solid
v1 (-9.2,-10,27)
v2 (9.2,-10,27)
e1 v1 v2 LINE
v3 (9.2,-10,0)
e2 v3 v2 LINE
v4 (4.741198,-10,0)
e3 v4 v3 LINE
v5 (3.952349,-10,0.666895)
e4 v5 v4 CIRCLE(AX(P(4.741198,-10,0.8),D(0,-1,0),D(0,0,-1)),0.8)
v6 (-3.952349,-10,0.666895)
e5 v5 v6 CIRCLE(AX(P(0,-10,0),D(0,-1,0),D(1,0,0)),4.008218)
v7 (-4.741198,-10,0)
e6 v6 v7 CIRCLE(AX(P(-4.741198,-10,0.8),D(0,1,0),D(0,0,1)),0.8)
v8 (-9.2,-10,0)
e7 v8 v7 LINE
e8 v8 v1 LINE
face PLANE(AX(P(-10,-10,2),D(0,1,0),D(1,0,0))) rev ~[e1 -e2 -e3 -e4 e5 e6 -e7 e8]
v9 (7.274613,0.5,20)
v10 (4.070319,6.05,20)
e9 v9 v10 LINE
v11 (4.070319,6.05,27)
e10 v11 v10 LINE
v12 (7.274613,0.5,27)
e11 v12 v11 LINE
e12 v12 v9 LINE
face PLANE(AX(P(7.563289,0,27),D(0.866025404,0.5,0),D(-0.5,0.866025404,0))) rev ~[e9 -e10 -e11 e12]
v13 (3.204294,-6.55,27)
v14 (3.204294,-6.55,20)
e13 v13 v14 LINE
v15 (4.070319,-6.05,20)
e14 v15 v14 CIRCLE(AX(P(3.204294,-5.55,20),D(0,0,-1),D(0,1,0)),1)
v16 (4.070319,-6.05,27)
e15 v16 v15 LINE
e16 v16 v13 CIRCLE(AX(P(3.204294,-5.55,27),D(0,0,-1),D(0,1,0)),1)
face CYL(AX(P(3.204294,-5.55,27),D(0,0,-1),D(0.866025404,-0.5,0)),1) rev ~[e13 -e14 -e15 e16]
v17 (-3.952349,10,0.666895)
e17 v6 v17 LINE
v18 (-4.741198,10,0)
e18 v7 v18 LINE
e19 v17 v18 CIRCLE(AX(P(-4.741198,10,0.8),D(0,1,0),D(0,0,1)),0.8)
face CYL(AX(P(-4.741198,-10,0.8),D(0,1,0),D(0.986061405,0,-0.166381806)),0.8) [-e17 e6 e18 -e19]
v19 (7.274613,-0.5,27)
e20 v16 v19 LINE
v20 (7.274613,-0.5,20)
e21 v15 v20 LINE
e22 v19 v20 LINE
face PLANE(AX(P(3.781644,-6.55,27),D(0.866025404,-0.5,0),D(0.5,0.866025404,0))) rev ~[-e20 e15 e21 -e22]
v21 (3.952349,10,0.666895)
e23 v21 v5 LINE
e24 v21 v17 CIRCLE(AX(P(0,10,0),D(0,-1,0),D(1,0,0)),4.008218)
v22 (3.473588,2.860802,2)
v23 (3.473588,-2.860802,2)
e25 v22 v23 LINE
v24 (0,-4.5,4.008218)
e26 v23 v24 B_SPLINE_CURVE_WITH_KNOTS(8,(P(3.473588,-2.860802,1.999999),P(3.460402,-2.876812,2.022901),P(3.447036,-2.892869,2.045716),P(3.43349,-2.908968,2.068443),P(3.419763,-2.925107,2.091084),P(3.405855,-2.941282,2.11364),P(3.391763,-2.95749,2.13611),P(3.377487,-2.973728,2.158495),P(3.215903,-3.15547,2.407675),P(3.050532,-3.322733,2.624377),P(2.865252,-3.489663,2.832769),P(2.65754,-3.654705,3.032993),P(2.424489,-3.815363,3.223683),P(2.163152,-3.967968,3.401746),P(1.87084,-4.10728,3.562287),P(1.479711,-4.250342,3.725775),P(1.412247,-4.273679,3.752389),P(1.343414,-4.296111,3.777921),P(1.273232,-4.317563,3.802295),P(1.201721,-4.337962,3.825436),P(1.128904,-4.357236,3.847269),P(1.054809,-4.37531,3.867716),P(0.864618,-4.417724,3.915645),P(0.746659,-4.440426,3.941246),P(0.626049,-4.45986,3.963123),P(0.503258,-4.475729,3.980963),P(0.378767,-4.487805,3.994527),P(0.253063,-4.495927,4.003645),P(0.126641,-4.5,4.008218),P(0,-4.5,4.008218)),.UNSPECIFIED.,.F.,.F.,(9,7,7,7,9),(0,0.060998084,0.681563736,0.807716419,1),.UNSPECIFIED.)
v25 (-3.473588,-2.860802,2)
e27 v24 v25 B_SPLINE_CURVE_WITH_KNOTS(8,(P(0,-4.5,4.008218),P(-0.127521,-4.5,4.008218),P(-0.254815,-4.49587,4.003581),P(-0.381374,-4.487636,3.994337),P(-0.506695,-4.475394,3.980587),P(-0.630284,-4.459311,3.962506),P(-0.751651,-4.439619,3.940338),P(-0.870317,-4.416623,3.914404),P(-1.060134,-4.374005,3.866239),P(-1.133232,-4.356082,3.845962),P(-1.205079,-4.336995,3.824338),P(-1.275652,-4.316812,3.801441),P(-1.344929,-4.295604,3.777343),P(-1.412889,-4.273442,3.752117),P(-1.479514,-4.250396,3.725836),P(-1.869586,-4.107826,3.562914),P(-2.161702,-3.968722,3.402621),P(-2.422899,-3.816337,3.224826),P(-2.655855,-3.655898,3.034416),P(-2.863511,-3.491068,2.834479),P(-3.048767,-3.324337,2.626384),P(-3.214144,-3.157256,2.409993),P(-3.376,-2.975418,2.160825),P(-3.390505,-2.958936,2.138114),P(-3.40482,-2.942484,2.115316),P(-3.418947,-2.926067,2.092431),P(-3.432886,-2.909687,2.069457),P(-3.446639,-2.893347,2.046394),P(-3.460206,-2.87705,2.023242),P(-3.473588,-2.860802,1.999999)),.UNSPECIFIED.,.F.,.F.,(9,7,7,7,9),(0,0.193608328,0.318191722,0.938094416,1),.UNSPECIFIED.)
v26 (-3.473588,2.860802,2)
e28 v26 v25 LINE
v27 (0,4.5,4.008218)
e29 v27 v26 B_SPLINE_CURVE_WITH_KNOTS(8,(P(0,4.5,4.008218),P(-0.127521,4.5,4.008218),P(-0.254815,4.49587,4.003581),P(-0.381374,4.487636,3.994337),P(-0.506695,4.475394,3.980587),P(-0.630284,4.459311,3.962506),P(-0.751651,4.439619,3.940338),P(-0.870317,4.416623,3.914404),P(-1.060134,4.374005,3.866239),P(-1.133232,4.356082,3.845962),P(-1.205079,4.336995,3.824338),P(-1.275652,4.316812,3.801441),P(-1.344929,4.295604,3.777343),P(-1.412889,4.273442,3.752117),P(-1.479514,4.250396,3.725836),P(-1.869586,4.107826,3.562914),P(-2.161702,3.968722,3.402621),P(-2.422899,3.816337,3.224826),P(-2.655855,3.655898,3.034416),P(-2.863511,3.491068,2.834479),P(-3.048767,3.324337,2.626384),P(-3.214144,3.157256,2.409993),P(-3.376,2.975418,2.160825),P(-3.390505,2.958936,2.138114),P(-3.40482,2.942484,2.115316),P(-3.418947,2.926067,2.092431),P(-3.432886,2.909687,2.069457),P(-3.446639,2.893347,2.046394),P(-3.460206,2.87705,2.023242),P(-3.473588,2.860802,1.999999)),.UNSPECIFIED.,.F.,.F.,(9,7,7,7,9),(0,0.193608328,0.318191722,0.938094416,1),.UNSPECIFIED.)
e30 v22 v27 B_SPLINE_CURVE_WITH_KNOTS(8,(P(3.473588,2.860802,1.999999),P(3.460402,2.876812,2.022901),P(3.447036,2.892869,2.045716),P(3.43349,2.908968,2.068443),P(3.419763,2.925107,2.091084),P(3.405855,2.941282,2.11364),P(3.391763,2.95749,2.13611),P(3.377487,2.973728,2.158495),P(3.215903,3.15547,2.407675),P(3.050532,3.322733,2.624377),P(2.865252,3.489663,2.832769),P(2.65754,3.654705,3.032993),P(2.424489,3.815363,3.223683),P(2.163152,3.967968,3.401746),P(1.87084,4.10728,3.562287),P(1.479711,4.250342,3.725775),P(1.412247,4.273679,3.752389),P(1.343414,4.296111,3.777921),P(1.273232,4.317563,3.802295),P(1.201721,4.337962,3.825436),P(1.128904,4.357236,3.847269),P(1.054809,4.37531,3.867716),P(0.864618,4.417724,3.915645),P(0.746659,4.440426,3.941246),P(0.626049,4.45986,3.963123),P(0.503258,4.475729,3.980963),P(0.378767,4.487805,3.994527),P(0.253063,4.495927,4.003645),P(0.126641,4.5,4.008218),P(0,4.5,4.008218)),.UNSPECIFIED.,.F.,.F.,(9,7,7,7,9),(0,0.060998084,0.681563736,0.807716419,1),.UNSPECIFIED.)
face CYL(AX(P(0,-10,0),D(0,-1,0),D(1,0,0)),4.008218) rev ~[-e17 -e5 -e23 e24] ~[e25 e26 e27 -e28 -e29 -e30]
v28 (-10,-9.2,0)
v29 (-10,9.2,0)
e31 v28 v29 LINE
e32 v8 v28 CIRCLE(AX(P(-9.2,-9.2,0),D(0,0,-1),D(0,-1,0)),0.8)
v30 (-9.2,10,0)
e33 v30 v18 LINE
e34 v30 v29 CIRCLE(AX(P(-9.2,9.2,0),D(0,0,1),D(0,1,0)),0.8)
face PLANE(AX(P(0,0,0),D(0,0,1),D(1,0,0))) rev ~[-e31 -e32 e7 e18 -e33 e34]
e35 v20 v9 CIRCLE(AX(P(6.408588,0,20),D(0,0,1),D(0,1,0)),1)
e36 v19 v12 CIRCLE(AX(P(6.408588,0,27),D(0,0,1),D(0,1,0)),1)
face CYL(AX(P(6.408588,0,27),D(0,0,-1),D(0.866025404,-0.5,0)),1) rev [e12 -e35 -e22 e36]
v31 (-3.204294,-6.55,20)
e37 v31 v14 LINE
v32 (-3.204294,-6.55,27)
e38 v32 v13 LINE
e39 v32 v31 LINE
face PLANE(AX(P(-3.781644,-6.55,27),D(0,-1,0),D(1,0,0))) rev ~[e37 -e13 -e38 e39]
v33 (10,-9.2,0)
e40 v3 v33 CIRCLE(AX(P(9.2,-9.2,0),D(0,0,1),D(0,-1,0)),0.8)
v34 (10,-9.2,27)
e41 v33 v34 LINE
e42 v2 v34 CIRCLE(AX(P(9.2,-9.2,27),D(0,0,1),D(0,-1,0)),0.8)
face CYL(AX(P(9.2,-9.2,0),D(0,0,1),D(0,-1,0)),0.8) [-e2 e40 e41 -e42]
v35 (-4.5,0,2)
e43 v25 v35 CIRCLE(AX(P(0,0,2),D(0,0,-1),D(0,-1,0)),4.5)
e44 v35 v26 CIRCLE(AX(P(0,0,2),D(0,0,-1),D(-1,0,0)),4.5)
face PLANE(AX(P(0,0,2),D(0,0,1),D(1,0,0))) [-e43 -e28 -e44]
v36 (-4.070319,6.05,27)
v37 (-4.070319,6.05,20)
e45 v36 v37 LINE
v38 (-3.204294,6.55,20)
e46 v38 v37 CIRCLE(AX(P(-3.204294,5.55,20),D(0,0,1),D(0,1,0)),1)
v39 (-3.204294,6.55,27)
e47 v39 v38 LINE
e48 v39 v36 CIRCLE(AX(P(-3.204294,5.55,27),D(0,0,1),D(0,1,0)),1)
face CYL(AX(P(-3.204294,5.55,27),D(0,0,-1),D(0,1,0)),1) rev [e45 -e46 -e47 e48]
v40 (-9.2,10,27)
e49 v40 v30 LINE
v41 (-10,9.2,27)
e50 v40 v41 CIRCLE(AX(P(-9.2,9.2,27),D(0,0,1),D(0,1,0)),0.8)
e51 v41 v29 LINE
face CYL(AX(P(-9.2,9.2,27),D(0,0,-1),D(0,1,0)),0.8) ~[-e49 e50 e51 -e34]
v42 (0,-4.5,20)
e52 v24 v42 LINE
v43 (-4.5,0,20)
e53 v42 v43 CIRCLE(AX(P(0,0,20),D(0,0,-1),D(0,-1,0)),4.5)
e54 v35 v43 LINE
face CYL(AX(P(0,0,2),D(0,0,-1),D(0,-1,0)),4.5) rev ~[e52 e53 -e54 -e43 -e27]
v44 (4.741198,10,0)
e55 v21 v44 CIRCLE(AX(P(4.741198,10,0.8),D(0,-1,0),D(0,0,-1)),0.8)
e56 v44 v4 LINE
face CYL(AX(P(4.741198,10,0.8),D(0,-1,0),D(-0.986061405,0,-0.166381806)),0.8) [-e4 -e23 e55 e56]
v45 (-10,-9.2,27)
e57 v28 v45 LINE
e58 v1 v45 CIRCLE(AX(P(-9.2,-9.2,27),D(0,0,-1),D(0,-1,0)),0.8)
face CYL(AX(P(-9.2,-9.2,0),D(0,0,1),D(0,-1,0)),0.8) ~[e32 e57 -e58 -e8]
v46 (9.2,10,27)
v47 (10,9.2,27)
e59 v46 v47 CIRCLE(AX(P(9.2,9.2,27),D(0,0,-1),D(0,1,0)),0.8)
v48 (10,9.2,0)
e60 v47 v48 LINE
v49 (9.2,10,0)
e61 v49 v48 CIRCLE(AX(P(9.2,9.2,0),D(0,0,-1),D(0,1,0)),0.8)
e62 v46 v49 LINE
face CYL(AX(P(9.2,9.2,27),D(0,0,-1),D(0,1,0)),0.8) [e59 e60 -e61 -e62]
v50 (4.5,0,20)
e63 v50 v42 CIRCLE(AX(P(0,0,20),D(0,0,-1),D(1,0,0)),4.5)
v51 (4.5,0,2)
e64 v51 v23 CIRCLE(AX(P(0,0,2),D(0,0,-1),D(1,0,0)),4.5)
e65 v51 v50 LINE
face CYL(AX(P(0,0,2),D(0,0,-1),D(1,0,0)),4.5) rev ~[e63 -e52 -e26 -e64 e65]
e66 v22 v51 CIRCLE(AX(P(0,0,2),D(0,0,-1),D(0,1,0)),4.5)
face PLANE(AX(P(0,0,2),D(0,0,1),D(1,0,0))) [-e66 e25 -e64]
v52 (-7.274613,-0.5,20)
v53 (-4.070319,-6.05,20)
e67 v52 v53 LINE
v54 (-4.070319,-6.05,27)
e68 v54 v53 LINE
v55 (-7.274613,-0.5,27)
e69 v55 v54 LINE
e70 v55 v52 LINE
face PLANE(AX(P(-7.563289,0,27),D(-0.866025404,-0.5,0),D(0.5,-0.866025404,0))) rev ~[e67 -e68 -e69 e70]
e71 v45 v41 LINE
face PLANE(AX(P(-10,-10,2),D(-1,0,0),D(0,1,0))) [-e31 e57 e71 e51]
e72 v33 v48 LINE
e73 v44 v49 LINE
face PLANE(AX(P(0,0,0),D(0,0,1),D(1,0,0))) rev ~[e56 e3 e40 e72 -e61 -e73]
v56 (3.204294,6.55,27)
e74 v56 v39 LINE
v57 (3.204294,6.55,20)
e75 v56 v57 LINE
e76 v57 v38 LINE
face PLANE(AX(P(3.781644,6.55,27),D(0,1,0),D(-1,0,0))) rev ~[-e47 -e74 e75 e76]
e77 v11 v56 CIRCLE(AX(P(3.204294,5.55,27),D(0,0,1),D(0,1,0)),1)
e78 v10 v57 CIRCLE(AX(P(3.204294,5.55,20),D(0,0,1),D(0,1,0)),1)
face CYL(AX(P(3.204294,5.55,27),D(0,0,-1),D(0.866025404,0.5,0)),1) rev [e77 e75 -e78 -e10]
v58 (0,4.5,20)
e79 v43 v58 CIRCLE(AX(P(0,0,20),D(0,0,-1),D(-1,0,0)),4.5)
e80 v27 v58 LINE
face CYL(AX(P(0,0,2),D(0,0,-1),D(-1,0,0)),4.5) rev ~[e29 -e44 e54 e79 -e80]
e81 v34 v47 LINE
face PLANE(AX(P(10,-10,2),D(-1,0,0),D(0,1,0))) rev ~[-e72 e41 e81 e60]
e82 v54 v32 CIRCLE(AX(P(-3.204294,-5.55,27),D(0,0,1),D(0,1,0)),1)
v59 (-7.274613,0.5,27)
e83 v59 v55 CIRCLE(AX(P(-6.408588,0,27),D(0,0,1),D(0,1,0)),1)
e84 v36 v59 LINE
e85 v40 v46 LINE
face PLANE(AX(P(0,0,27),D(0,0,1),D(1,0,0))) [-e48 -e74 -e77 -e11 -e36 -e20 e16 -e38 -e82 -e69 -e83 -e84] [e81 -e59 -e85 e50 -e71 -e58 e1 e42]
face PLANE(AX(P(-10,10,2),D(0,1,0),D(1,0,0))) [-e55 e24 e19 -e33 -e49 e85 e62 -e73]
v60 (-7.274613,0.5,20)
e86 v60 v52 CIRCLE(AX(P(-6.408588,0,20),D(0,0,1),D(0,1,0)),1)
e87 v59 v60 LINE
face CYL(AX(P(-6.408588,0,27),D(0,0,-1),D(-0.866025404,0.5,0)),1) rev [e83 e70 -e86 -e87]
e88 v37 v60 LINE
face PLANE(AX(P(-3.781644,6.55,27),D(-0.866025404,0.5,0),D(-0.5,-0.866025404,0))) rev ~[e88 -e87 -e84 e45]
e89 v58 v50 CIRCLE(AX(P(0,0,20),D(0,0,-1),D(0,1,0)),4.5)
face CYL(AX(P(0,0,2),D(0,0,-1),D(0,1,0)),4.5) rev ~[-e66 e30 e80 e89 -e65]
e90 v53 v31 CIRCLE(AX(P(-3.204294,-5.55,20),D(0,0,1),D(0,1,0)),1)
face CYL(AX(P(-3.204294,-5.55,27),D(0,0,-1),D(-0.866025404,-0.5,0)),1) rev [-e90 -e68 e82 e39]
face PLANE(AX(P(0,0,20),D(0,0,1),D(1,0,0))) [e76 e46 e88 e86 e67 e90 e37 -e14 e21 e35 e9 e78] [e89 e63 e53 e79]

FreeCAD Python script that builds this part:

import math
import FreeCAD as App
import Part
import Sketcher
Q = App.Units.Quantity


def edges_at(feature, points):
    """Names of the edges that pass closest to the given points."""
    edges = feature.Shape.Edges
    near = lambda p: min(range(len(edges)), key=lambda i: edges[i].distToShape(Part.Vertex(*p))[0])
    return sorted({f"Edge{near(p) + 1}" for p in points})


def add_polygon(sketch, points):
    """Adds a closed chain of lines whose ends are joined by coincident constraints."""
    first, n = sketch.GeometryCount, len(points)
    for a, b in zip(points, points[1:] + points[:1]):
        sketch.addGeometry(Part.LineSegment(App.Vector(*a, 0), App.Vector(*b, 0)), False)
    for i in range(n):
        sketch.addConstraint(Sketcher.Constraint("Coincident", first + i, 2, first + (i + 1) % n, 1))

doc = App.newDocument("Part")
params = doc.addObject("Spreadsheet::Sheet", "Params")
for row, (alias, value) in enumerate([
    ("sketch1_width", "20 mm"),
    ("pad1_length", "2 mm"),
    ("sketch2_width", "20 mm"),
    ("sketch2_width2", "9 mm"),
    ("pad2_length", "25 mm"),
    ("sketch3_width", "9 mm"),
    ("pocket1_length", "7 mm"),
    ("fillet_radius", "1 mm"),
    ("sketch4_radius", "4.5 mm"),
    ("sketch4_width", "20 mm"),
    ("pad3_length", "18 mm"),
    ("pocket2_length", "49.6 mm"),
    ("fillet2_radius", "0.8 mm"),
    ("fillet3_radius", "0.8 mm"),
], start=1):
    params.set(f"A{row}", alias)
    params.set(f"B{row}", "=" + value)
    params.setAlias(f"B{row}", alias)

body = doc.addObject("PartDesign::Body", "Body")

sketch1 = doc.addObject("Sketcher::SketchObject", "Sketch")
body.addObject(sketch1)
sketch1.AttachmentSupport = (doc.XY_Plane, [""])
sketch1.MapMode = "FlatFace"
add_polygon(sketch1, [(-10, 10), (-10, -10), (10, -10), (10, 10)])
sketch1.addConstraint([
    Sketcher.Constraint("Vertical", 0),
    Sketcher.Constraint("Horizontal", 1),
    Sketcher.Constraint("Vertical", 2),
    Sketcher.Constraint("Horizontal", 3),
    Sketcher.Constraint("Symmetric", 0, 2, 2, 2, -1, 1),
    Sketcher.Constraint("Equal", 3, 0),
    Sketcher.Constraint("DistanceX", 1, 1, 1, 2, 20.0),
])
sketch1.setExpression("Constraints[10]", "Params.sketch1_width")
pad1 = doc.addObject("PartDesign::Pad", "Pad")
body.addObject(pad1)
pad1.Profile = sketch1
pad1.setExpression("Length", "Params.pad1_length")

sketch2 = doc.addObject("Sketcher::SketchObject", "Sketch001")
body.addObject(sketch2)
sketch2.AttachmentSupport = (doc.XY_Plane, [""])
sketch2.MapMode = "FlatFace"
sketch2.AttachmentOffset = App.Placement(App.Vector(0, 0, 2), App.Rotation())
add_polygon(sketch2, [(-10, 10), (-10, -10), (10, -10), (10, 10)])
add_polygon(sketch2, [(4, -4), (-4, -4), (-4, 4), (4, 4)])
sketch2.addConstraint([
    Sketcher.Constraint("Vertical", 0),
    Sketcher.Constraint("Horizontal", 1),
    Sketcher.Constraint("Vertical", 2),
    Sketcher.Constraint("Horizontal", 3),
    Sketcher.Constraint("Horizontal", 4),
    Sketcher.Constraint("Vertical", 5),
    Sketcher.Constraint("Horizontal", 6),
    Sketcher.Constraint("Vertical", 7),
    Sketcher.Constraint("Symmetric", 0, 2, 2, 2, -1, 1),
    Sketcher.Constraint("Symmetric", 4, 2, 6, 2, -1, 1),
    Sketcher.Constraint("Equal", 3, 0),
    Sketcher.Constraint("Equal", 6, 5),
    Sketcher.Constraint("DistanceX", 1, 1, 1, 2, 20.0),
    Sketcher.Constraint("DistanceX", 4, 2, 4, 1, 9.0),
])
sketch2.setExpression("Constraints[20]", "Params.sketch2_width")
sketch2.setExpression("Constraints[21]", "Params.sketch2_width2")
pad2 = doc.addObject("PartDesign::Pad", "Pad001")
body.addObject(pad2)
pad2.Profile = sketch2
pad2.setExpression("Length", "Params.pad2_length")

sketch3 = doc.addObject("Sketcher::SketchObject", "Sketch002")
body.addObject(sketch3)
sketch3.AttachmentSupport = (doc.XY_Plane, [""])
sketch3.MapMode = "FlatFace"
sketch3.AttachmentOffset = App.Placement(App.Vector(0, 0, 27), App.Rotation())
add_polygon(sketch3, [(4, -7), (8, 0), (4, 7), (-4, 7), (-8, 0), (-4, -7)])
add_polygon(sketch3, [(4, -4), (-4, -4), (-4, 4), (4, 4)])
sketch3.addConstraint([
    Sketcher.Constraint("Horizontal", 2),
    Sketcher.Constraint("Horizontal", 5),
    Sketcher.Constraint("Horizontal", 6),
    Sketcher.Constraint("Vertical", 7),
    Sketcher.Constraint("Horizontal", 8),
    Sketcher.Constraint("Vertical", 9),
    Sketcher.Constraint("Symmetric", 0, 2, 3, 2, -1, 1),
    Sketcher.Constraint("Symmetric", 1, 2, 4, 2, -1, 1),
    Sketcher.Constraint("Symmetric", 6, 2, 8, 2, -1, 1),
    Sketcher.Constraint("PointOnObject", 0, 2, -1),
    Sketcher.Constraint("Parallel", 0, 3),
    Sketcher.Constraint("Vertical", 2, 2, 4, 2),
    Sketcher.Constraint("Equal", 8, 7),
    Sketcher.Constraint("DistanceX", 6, 2, 6, 1, 9.0),
    Sketcher.Constraint("Angle", 0, Q("60 deg")),
    Sketcher.Constraint("DistanceY", 4, 2, 2, 2, 13.1),
    Sketcher.Constraint("DistanceX", 2, 2, 2, 1, 7.563289),
])
sketch3.setExpression("Constraints[23]", "Params.sketch3_width")
pocket1 = doc.addObject("PartDesign::Pocket", "Pocket")
body.addObject(pocket1)
pocket1.Profile = sketch3
pocket1.setExpression("Length", "Params.pocket1_length")
doc.recompute()

fillet = doc.addObject("PartDesign::Fillet", "Fillet")
body.addObject(fillet)
fillet.Base = (pocket1, edges_at(pocket1, [
    (3.782, -6.55, 23.5),
    (7.563, 0, 23.5),
    (3.782, 6.55, 23.5),
    (-3.782, 6.55, 23.5),
    (-7.563, 0, 23.5),
    (-3.782, -6.55, 23.5),
]))
fillet.setExpression("Radius", "Params.fillet_radius")

sketch4 = doc.addObject("Sketcher::SketchObject", "Sketch003")
body.addObject(sketch4)
sketch4.AttachmentSupport = (doc.XY_Plane, [""])
sketch4.MapMode = "FlatFace"
sketch4.AttachmentOffset = App.Placement(App.Vector(0, 0, 2), App.Rotation())
add_polygon(sketch4, [(-10, 10), (-10, -10), (10, -10), (10, 10)])
sketch4.addGeometry(Part.ArcOfCircle(Part.Circle(App.Vector(0, 0, 0), App.Vector(0, 0, 1), 4.5), math.radians(-90), math.radians(0)), False)
sketch4.addGeometry(Part.ArcOfCircle(Part.Circle(App.Vector(0, 0, 0), App.Vector(0, 0, 1), 4.5), math.radians(180), math.radians(270)), False)
sketch4.addGeometry(Part.ArcOfCircle(Part.Circle(App.Vector(0, 0, 0), App.Vector(0, 0, 1), 4.5), math.radians(90), math.radians(180)), False)
sketch4.addGeometry(Part.ArcOfCircle(Part.Circle(App.Vector(0, 0, 0), App.Vector(0, 0, 1), 4.5), math.radians(0), math.radians(90)), False)
sketch4.addConstraint([
    Sketcher.Constraint("Tangent", 4, 1, 5, 2),
    Sketcher.Constraint("Tangent", 5, 1, 6, 2),
    Sketcher.Constraint("Tangent", 6, 1, 7, 2),
    Sketcher.Constraint("Tangent", 7, 1, 4, 2),
    Sketcher.Constraint("Vertical", 0),
    Sketcher.Constraint("Horizontal", 1),
    Sketcher.Constraint("Vertical", 2),
    Sketcher.Constraint("Horizontal", 3),
    Sketcher.Constraint("Coincident", 4, 3, -1, 1),
    Sketcher.Constraint("Equal", 4, 5),
    Sketcher.Constraint("Symmetric", 0, 2, 2, 2, -1, 1),
    Sketcher.Constraint("PointOnObject", 4, 1, -2),
    Sketcher.Constraint("PointOnObject", 5, 1, -1),
    Sketcher.Constraint("PointOnObject", 6, 1, -2),
    Sketcher.Constraint("PointOnObject", 7, 1, -1),
    Sketcher.Constraint("Equal", 3, 0),
    Sketcher.Constraint("Radius", 4, 4.5),
    Sketcher.Constraint("DistanceX", 1, 1, 1, 2, 20.0),
])
sketch4.setExpression("Constraints[20]", "Params.sketch4_radius")
sketch4.setExpression("Constraints[21]", "Params.sketch4_width")
pad3 = doc.addObject("PartDesign::Pad", "Pad002")
body.addObject(pad3)
pad3.Profile = sketch4
pad3.setExpression("Length", "Params.pad3_length")

sketch5 = doc.addObject("Sketcher::SketchObject", "Sketch004")
body.addObject(sketch5)
sketch5.AttachmentSupport = (doc.XZ_Plane, [""])
sketch5.MapMode = "FlatFace"
sketch5.AttachmentOffset = App.Placement(App.Vector(0, 0, 10), App.Rotation())
sketch5.addGeometry([
    Part.LineSegment(App.Vector(-4, 0, 0), App.Vector(4, 0, 0)),
    Part.ArcOfCircle(Part.Circle(App.Vector(0, 0, 0), App.Vector(0, 0, 1), 4), math.radians(0), math.radians(180)),
], False)
sketch5.addConstraint([
    Sketcher.Constraint("Coincident", 0, 1, 1, 2),
    Sketcher.Constraint("Coincident", 1, 1, 0, 2),
    Sketcher.Constraint("Horizontal", 0),
    Sketcher.Constraint("Coincident", 1, 3, -1, 1),
    Sketcher.Constraint("PointOnObject", 0, 1, -1),
    Sketcher.Constraint("Radius", 1, 4.008218),
])
pocket2 = doc.addObject("PartDesign::Pocket", "Pocket001")
body.addObject(pocket2)
pocket2.Profile = sketch5
pocket2.setExpression("Length", "Params.pocket2_length")
pocket2.Midplane = True
doc.recompute()

fillet2 = doc.addObject("PartDesign::Fillet", "Fillet001")
body.addObject(fillet2)
fillet2.Base = (pocket2, edges_at(pocket2, [(4.008, 0, 0), (-4.008, 0, 0)]))
fillet2.setExpression("Radius", "Params.fillet2_radius")
doc.recompute()

fillet3 = doc.addObject("PartDesign::Fillet", "Fillet002")
body.addObject(fillet3)
fillet3.Base = (fillet2, edges_at(fillet2, [
    (10, -10, 13.5),
    (-10, -10, 13.5),
    (-10, 10, 13.5),
    (10, 10, 13.5),
]))
fillet3.setExpression("Radius", "Params.fillet3_radius")

doc.recompute()
